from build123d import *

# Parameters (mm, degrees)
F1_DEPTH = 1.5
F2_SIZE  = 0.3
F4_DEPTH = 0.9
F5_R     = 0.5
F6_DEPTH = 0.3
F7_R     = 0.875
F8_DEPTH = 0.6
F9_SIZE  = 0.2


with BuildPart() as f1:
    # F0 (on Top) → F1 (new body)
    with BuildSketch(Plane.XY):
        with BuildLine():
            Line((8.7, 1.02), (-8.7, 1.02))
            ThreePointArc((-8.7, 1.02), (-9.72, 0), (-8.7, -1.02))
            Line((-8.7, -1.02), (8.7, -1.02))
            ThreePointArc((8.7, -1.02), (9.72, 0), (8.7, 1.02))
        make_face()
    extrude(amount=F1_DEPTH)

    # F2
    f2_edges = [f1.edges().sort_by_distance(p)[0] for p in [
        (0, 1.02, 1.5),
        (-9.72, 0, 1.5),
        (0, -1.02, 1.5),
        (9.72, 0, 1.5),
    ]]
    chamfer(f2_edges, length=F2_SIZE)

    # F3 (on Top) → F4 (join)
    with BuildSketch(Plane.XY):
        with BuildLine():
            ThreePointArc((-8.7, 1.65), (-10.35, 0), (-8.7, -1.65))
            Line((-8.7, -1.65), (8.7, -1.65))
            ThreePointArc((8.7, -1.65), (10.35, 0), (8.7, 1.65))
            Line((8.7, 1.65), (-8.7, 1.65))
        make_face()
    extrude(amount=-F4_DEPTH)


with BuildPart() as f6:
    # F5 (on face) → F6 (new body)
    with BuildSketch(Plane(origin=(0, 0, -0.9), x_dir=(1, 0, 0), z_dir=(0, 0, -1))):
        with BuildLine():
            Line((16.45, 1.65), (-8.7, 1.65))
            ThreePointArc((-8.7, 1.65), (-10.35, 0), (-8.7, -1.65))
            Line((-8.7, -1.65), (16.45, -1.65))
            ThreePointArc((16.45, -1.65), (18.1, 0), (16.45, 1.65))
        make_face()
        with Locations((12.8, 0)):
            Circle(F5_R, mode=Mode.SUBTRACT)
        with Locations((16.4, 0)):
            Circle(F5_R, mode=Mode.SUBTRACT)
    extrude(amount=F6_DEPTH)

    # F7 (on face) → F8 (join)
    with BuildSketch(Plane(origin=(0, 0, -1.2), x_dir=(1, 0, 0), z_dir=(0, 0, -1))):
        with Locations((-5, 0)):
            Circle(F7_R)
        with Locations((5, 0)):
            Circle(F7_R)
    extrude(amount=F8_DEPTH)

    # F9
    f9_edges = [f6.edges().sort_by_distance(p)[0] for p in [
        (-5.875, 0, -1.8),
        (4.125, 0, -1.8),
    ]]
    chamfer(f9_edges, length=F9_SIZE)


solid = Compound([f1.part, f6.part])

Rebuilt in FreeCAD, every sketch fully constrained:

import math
import FreeCAD as App
import Part
import Sketcher
from FreeCAD import Vector


def edges_at(feature, points):
    """Names of the edges that pass closest to the given points."""
    edges = feature.Shape.Edges
    near = lambda p: min(range(len(edges)), key=lambda i: edges[i].distToShape(Part.Vertex(*p))[0])
    return sorted({f"Edge{near(p) + 1}" for p in points})

doc = App.newDocument("Part")
body = doc.addObject("PartDesign::Body", "Body")

sketch1 = body.newObject("Sketcher::SketchObject", "Sketch")
sketch1.AttachmentSupport = (doc.getObject("XY_Plane"), [""])
sketch1.MapMode = "FlatFace"
sketch1.addGeometry([
    Part.LineSegment(Vector(8.7, 1, 0), Vector(-8.7, 1, 0)),
    Part.ArcOfCircle(Part.Circle(Vector(-8.7, 0, 0), Vector(0, 0, 1), 1), math.radians(90), math.radians(270)),
    Part.LineSegment(Vector(-8.7, -1, 0), Vector(8.7, -1, 0)),
    Part.ArcOfCircle(Part.Circle(Vector(8.7, 0, 0), Vector(0, 0, 1), 1), math.radians(-90), math.radians(90)),
], False)
sketch1.addConstraint([
    Sketcher.Constraint("Tangent", 0, 2, 1, 1),
    Sketcher.Constraint("Tangent", 1, 2, 2, 1),
    Sketcher.Constraint("Tangent", 2, 2, 3, 1),
    Sketcher.Constraint("Tangent", 3, 2, 0, 1),
    Sketcher.Constraint("Horizontal", 0),
    Sketcher.Constraint("Horizontal", 2),
    Sketcher.Constraint("Symmetric", 1, 3, 3, 3, -1, 1),
    Sketcher.Constraint("Radius", 1, 1.02),
    Sketcher.Constraint("DistanceX", 0, 2, 0, 1, 17.4),
])
pad1 = body.newObject("PartDesign::Pad", "Pad")
pad1.Profile = sketch1
pad1.Length = 1.5
doc.recompute()

chamfer = body.newObject("PartDesign::Chamfer", "Chamfer")
chamfer.Base = (pad1, edges_at(pad1, [
    (0, 1.02, 1.5),
    (-9.72, 0, 1.5),
    (0, -1.02, 1.5),
    (9.72, 0, 1.5),
]))
chamfer.Size = 0.3

sketch2 = body.newObject("Sketcher::SketchObject", "Sketch001")
sketch2.AttachmentSupport = (doc.getObject("XY_Plane"), [""])
sketch2.MapMode = "FlatFace"
sketch2.addGeometry([
    Part.ArcOfCircle(Part.Circle(Vector(-8.7, 0, 0), Vector(0, 0, 1), 1.6), math.radians(90), math.radians(270)),
    Part.LineSegment(Vector(-8.7, -1.6, 0), Vector(8.7, -1.6, 0)),
    Part.ArcOfCircle(Part.Circle(Vector(8.7, 0, 0), Vector(0, 0, 1), 1.6), math.radians(-90), math.radians(90)),
    Part.LineSegment(Vector(8.7, 1.6, 0), Vector(-8.7, 1.6, 0)),
], False)
sketch2.addConstraint([
    Sketcher.Constraint("Tangent", 0, 2, 1, 1),
    Sketcher.Constraint("Tangent", 1, 2, 2, 1),
    Sketcher.Constraint("Tangent", 2, 2, 3, 1),
    Sketcher.Constraint("Tangent", 3, 2, 0, 1),
    Sketcher.Constraint("Horizontal", 1),
    Sketcher.Constraint("Horizontal", 3),
    Sketcher.Constraint("Symmetric", 0, 3, 2, 3, -1, 1),
    Sketcher.Constraint("Radius", 0, 1.65),
    Sketcher.Constraint("DistanceX", 1, 1, 1, 2, 17.4),
])
pad2 = body.newObject("PartDesign::Pad", "Pad001")
pad2.Profile = sketch2
pad2.Length = 0.9
pad2.Reversed = True
body2 = doc.addObject("PartDesign::Body", "Body001")

sketch3 = body2.newObject("Sketcher::SketchObject", "Sketch002")
sketch3.AttachmentSupport = (doc.getObject("XY_Plane001"), [""])
sketch3.MapMode = "FlatFace"
sketch3.AttachmentOffset = App.Placement(Vector(0, 0, -0.9), App.Rotation())
sketch3.addGeometry([
    Part.LineSegment(Vector(16.4, -1.6, 0), Vector(-8.7, -1.6, 0)),
    Part.ArcOfCircle(Part.Circle(Vector(-8.7, 0, 0), Vector(0, 0, 1), 1.6), math.radians(90), math.radians(270)),
    Part.LineSegment(Vector(-8.7, 1.6, 0), Vector(16.4, 1.6, 0)),
    Part.ArcOfCircle(Part.Circle(Vector(16.4, 0, 0), Vector(0, 0, 1), 1.6), math.radians(-90), math.radians(90)),
    Part.Circle(Vector(12.8, 0, 0), Vector(0, 0, 1), 0.5),
    Part.Circle(Vector(16.4, 0, 0), Vector(0, 0, 1), 0.5),
], False)
sketch3.addConstraint([
    Sketcher.Constraint("Tangent", 0, 2, 1, 2),
    Sketcher.Constraint("Tangent", 1, 1, 2, 1),
    Sketcher.Constraint("Tangent", 2, 2, 3, 2),
    Sketcher.Constraint("Tangent", 3, 1, 0, 1),
    Sketcher.Constraint("Horizontal", 0),
    Sketcher.Constraint("Horizontal", 2),
    Sketcher.Constraint("Equal", 4, 5),
    Sketcher.Constraint("PointOnObject", 1, 3, -1),
    Sketcher.Constraint("PointOnObject", 4, 3, -1),
    Sketcher.Constraint("PointOnObject", 5, 3, -1),
    Sketcher.Constraint("Diameter", 4, 1.0),
    Sketcher.Constraint("Radius", 1, 1.65),
    Sketcher.Constraint("DistanceX", 0, 2, 0, 1, 25.15),
    Sketcher.Constraint("DistanceX", 1, 3, -1, 1, 8.7),
    Sketcher.Constraint("DistanceX", -1, 1, 4, 3, 12.8),
    Sketcher.Constraint("DistanceX", -1, 1, 5, 3, 16.4),
])
pad3 = body2.newObject("PartDesign::Pad", "Pad002")
pad3.Profile = sketch3
pad3.Length = 0.3
pad3.Reversed = True

sketch4 = body2.newObject("Sketcher::SketchObject", "Sketch003")
sketch4.AttachmentSupport = (doc.getObject("XY_Plane001"), [""])
sketch4.MapMode = "FlatFace"
sketch4.AttachmentOffset = App.Placement(Vector(0, 0, -1.2), App.Rotation())
sketch4.addGeometry([
    Part.Circle(Vector(-5, 0, 0), Vector(0, 0, 1), 0.9),
    Part.Circle(Vector(5, 0, 0), Vector(0, 0, 1), 0.9),
], False)
sketch4.addConstraint([
    Sketcher.Constraint("Equal", 0, 1),
    Sketcher.Constraint("Symmetric", 0, 3, 1, 3, -1, 1),
    Sketcher.Constraint("PointOnObject", 0, 3, -1),
    Sketcher.Constraint("Diameter", 0, 1.75),
    Sketcher.Constraint("DistanceX", 0, 3, -1, 1, 5.0),
])
pad4 = body2.newObject("PartDesign::Pad", "Pad003")
pad4.Profile = sketch4
pad4.Length = 0.6
pad4.Reversed = True
doc.recompute()

chamfer2 = body2.newObject("PartDesign::Chamfer", "Chamfer001")
chamfer2.Base = (pad4, edges_at(pad4, [(-5.875, 0, -1.8), (4.125, 0, -1.8)]))
chamfer2.Size = 0.2

doc.recompute()
